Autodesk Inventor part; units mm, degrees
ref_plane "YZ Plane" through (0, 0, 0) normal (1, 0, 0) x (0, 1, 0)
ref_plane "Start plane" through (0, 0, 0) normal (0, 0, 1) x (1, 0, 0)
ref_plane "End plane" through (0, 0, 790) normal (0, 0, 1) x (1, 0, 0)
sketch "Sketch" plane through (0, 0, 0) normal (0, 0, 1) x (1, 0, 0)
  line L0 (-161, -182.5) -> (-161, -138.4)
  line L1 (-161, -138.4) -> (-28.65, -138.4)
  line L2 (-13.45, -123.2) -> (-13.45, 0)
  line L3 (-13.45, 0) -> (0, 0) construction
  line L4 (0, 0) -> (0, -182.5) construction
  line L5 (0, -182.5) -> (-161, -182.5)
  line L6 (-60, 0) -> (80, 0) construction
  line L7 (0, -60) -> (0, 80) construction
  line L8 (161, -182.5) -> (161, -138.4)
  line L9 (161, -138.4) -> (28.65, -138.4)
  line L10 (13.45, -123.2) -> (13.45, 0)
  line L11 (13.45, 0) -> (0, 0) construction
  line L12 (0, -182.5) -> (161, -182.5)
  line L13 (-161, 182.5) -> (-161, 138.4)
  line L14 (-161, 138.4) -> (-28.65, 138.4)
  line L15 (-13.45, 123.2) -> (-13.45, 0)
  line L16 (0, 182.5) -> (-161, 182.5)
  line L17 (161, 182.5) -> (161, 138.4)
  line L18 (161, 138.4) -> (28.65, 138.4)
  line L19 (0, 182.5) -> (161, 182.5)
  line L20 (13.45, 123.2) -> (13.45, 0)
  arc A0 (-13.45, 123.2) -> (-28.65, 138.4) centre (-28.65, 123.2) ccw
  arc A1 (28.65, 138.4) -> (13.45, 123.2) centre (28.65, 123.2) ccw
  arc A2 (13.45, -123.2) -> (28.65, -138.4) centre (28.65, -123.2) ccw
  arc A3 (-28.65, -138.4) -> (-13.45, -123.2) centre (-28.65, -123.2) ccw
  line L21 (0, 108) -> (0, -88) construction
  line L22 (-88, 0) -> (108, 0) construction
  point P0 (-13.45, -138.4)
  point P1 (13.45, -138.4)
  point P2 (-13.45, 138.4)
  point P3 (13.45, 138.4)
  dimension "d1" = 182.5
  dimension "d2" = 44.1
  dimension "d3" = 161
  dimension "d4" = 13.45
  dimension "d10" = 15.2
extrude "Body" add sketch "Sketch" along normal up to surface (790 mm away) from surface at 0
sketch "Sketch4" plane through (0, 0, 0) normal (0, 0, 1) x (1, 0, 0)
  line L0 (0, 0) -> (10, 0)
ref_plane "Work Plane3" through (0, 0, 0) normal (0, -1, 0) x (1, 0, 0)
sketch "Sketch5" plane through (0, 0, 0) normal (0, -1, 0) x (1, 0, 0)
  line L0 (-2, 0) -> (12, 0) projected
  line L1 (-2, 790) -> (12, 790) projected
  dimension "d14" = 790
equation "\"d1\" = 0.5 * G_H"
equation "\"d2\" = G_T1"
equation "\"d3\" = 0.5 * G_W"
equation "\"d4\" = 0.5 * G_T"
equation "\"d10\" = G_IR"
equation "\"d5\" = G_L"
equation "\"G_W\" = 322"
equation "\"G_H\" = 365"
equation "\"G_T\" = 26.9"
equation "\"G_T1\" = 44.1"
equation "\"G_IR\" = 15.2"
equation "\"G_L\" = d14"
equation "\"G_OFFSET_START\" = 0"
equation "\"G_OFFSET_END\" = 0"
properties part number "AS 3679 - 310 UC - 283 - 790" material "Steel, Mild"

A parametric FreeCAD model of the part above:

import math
import FreeCAD as App
import Part
import Sketcher
Q = App.Units.Quantity

doc = App.newDocument("Part")
body = doc.addObject("PartDesign::Body", "Body")

# Sketch on XY plane
sketch1 = body.newObject("Sketcher::SketchObject", "Sketch")
sketch1.AttachmentSupport = (doc.getObject("XY_Plane"), [""])
sketch1.MapMode = "FlatFace"
sketch1.addGeometry([
    Part.LineSegment(App.Vector(-161, -138, 0), App.Vector(-161, -182, 0)),  # 0
    Part.LineSegment(App.Vector(-161, -182, 0), App.Vector(161, -182, 0)),  # 1
    Part.LineSegment(App.Vector(161, -182, 0), App.Vector(161, -138, 0)),  # 2
    Part.LineSegment(App.Vector(161, -138, 0), App.Vector(29, -138, 0)),  # 3
    Part.ArcOfCircle(Part.Circle(App.Vector(29, -123, 0), App.Vector(0, 0, 1), 15), math.radians(180), math.radians(270)),  # 4
    Part.LineSegment(App.Vector(13, -123, 0), App.Vector(13, 123, 0)),  # 5
    Part.ArcOfCircle(Part.Circle(App.Vector(29, 123, 0), App.Vector(0, 0, 1), 15), math.radians(90), math.radians(180)),  # 6
    Part.LineSegment(App.Vector(29, 138, 0), App.Vector(161, 138, 0)),  # 7
    Part.LineSegment(App.Vector(161, 138, 0), App.Vector(161, 182, 0)),  # 8
    Part.LineSegment(App.Vector(161, 182, 0), App.Vector(-161, 182, 0)),  # 9
    Part.LineSegment(App.Vector(-161, 182, 0), App.Vector(-161, 138, 0)),  # 10
    Part.LineSegment(App.Vector(-161, 138, 0), App.Vector(-29, 138, 0)),  # 11
    Part.ArcOfCircle(Part.Circle(App.Vector(-29, 123, 0), App.Vector(0, 0, 1), 15), math.radians(0), math.radians(90)),  # 12
    Part.LineSegment(App.Vector(-13, 123, 0), App.Vector(-13, -123, 0)),  # 13
    Part.ArcOfCircle(Part.Circle(App.Vector(-29, -123, 0), App.Vector(0, 0, 1), 15), math.radians(-90), math.radians(0)),  # 14
    Part.LineSegment(App.Vector(-29, -138, 0), App.Vector(-161, -138, 0)),  # 15
], False)
sketch1.addConstraint([
    Sketcher.Constraint("Coincident", 0, 2, 1, 1),
    Sketcher.Constraint("Coincident", 1, 2, 2, 1),
    Sketcher.Constraint("Coincident", 2, 2, 3, 1),
    Sketcher.Constraint("Tangent", 3, 2, 4, 2),
    Sketcher.Constraint("Tangent", 4, 1, 5, 1),
    Sketcher.Constraint("Tangent", 5, 2, 6, 2),
    Sketcher.Constraint("Tangent", 6, 1, 7, 1),
    Sketcher.Constraint("Coincident", 7, 2, 8, 1),
    Sketcher.Constraint("Coincident", 8, 2, 9, 1),
    Sketcher.Constraint("Coincident", 9, 2, 10, 1),
    Sketcher.Constraint("Coincident", 10, 2, 11, 1),
    Sketcher.Constraint("Tangent", 11, 2, 12, 2),
    Sketcher.Constraint("Tangent", 12, 1, 13, 1),
    Sketcher.Constraint("Tangent", 13, 2, 14, 2),
    Sketcher.Constraint("Tangent", 14, 1, 15, 1),
    Sketcher.Constraint("Coincident", 15, 2, 0, 1),
    Sketcher.Constraint("Vertical", 0),
    Sketcher.Constraint("Horizontal", 1),
    Sketcher.Constraint("Vertical", 2),
    Sketcher.Constraint("Horizontal", 3),
    Sketcher.Constraint("Vertical", 5),
    Sketcher.Constraint("Horizontal", 7),
    Sketcher.Constraint("Vertical", 8),
    Sketcher.Constraint("Horizontal", 9),
    Sketcher.Constraint("Vertical", 10),
    Sketcher.Constraint("Horizontal", 11),
    Sketcher.Constraint("Vertical", 13),
    Sketcher.Constraint("Horizontal", 15),
    Sketcher.Constraint("Equal", 4, 6),
    Sketcher.Constraint("Equal", 6, 12),
    Sketcher.Constraint("Equal", 12, 14),
    Sketcher.Constraint("Symmetric", 4, 3, 12, 3, -1, 1),
    Sketcher.Constraint("Symmetric", 0, 2, 8, 2, -1, 1),
    Sketcher.Constraint("Symmetric", 7, 2, 10, 2, -2),
    Sketcher.Constraint("Symmetric", 2, 2, 15, 2, -2),
    Sketcher.Constraint("Radius", 4, Q("15.2 mm")),
    Sketcher.Constraint("DistanceY", 0, 2, 0, 1, Q("44.1 mm")),
    Sketcher.Constraint("DistanceX", 0, 2, -1, 1, Q("161 mm")),
    Sketcher.Constraint("DistanceY", 0, 2, -1, 1, Q("182.5 mm")),
    Sketcher.Constraint("DistanceX", -1, 1, 4, 1, Q("13.45 mm")),
])
pad1 = body.newObject("PartDesign::Pad", "Pad")
pad1.Profile = sketch1
pad1.Length = 790

doc.recompute()
